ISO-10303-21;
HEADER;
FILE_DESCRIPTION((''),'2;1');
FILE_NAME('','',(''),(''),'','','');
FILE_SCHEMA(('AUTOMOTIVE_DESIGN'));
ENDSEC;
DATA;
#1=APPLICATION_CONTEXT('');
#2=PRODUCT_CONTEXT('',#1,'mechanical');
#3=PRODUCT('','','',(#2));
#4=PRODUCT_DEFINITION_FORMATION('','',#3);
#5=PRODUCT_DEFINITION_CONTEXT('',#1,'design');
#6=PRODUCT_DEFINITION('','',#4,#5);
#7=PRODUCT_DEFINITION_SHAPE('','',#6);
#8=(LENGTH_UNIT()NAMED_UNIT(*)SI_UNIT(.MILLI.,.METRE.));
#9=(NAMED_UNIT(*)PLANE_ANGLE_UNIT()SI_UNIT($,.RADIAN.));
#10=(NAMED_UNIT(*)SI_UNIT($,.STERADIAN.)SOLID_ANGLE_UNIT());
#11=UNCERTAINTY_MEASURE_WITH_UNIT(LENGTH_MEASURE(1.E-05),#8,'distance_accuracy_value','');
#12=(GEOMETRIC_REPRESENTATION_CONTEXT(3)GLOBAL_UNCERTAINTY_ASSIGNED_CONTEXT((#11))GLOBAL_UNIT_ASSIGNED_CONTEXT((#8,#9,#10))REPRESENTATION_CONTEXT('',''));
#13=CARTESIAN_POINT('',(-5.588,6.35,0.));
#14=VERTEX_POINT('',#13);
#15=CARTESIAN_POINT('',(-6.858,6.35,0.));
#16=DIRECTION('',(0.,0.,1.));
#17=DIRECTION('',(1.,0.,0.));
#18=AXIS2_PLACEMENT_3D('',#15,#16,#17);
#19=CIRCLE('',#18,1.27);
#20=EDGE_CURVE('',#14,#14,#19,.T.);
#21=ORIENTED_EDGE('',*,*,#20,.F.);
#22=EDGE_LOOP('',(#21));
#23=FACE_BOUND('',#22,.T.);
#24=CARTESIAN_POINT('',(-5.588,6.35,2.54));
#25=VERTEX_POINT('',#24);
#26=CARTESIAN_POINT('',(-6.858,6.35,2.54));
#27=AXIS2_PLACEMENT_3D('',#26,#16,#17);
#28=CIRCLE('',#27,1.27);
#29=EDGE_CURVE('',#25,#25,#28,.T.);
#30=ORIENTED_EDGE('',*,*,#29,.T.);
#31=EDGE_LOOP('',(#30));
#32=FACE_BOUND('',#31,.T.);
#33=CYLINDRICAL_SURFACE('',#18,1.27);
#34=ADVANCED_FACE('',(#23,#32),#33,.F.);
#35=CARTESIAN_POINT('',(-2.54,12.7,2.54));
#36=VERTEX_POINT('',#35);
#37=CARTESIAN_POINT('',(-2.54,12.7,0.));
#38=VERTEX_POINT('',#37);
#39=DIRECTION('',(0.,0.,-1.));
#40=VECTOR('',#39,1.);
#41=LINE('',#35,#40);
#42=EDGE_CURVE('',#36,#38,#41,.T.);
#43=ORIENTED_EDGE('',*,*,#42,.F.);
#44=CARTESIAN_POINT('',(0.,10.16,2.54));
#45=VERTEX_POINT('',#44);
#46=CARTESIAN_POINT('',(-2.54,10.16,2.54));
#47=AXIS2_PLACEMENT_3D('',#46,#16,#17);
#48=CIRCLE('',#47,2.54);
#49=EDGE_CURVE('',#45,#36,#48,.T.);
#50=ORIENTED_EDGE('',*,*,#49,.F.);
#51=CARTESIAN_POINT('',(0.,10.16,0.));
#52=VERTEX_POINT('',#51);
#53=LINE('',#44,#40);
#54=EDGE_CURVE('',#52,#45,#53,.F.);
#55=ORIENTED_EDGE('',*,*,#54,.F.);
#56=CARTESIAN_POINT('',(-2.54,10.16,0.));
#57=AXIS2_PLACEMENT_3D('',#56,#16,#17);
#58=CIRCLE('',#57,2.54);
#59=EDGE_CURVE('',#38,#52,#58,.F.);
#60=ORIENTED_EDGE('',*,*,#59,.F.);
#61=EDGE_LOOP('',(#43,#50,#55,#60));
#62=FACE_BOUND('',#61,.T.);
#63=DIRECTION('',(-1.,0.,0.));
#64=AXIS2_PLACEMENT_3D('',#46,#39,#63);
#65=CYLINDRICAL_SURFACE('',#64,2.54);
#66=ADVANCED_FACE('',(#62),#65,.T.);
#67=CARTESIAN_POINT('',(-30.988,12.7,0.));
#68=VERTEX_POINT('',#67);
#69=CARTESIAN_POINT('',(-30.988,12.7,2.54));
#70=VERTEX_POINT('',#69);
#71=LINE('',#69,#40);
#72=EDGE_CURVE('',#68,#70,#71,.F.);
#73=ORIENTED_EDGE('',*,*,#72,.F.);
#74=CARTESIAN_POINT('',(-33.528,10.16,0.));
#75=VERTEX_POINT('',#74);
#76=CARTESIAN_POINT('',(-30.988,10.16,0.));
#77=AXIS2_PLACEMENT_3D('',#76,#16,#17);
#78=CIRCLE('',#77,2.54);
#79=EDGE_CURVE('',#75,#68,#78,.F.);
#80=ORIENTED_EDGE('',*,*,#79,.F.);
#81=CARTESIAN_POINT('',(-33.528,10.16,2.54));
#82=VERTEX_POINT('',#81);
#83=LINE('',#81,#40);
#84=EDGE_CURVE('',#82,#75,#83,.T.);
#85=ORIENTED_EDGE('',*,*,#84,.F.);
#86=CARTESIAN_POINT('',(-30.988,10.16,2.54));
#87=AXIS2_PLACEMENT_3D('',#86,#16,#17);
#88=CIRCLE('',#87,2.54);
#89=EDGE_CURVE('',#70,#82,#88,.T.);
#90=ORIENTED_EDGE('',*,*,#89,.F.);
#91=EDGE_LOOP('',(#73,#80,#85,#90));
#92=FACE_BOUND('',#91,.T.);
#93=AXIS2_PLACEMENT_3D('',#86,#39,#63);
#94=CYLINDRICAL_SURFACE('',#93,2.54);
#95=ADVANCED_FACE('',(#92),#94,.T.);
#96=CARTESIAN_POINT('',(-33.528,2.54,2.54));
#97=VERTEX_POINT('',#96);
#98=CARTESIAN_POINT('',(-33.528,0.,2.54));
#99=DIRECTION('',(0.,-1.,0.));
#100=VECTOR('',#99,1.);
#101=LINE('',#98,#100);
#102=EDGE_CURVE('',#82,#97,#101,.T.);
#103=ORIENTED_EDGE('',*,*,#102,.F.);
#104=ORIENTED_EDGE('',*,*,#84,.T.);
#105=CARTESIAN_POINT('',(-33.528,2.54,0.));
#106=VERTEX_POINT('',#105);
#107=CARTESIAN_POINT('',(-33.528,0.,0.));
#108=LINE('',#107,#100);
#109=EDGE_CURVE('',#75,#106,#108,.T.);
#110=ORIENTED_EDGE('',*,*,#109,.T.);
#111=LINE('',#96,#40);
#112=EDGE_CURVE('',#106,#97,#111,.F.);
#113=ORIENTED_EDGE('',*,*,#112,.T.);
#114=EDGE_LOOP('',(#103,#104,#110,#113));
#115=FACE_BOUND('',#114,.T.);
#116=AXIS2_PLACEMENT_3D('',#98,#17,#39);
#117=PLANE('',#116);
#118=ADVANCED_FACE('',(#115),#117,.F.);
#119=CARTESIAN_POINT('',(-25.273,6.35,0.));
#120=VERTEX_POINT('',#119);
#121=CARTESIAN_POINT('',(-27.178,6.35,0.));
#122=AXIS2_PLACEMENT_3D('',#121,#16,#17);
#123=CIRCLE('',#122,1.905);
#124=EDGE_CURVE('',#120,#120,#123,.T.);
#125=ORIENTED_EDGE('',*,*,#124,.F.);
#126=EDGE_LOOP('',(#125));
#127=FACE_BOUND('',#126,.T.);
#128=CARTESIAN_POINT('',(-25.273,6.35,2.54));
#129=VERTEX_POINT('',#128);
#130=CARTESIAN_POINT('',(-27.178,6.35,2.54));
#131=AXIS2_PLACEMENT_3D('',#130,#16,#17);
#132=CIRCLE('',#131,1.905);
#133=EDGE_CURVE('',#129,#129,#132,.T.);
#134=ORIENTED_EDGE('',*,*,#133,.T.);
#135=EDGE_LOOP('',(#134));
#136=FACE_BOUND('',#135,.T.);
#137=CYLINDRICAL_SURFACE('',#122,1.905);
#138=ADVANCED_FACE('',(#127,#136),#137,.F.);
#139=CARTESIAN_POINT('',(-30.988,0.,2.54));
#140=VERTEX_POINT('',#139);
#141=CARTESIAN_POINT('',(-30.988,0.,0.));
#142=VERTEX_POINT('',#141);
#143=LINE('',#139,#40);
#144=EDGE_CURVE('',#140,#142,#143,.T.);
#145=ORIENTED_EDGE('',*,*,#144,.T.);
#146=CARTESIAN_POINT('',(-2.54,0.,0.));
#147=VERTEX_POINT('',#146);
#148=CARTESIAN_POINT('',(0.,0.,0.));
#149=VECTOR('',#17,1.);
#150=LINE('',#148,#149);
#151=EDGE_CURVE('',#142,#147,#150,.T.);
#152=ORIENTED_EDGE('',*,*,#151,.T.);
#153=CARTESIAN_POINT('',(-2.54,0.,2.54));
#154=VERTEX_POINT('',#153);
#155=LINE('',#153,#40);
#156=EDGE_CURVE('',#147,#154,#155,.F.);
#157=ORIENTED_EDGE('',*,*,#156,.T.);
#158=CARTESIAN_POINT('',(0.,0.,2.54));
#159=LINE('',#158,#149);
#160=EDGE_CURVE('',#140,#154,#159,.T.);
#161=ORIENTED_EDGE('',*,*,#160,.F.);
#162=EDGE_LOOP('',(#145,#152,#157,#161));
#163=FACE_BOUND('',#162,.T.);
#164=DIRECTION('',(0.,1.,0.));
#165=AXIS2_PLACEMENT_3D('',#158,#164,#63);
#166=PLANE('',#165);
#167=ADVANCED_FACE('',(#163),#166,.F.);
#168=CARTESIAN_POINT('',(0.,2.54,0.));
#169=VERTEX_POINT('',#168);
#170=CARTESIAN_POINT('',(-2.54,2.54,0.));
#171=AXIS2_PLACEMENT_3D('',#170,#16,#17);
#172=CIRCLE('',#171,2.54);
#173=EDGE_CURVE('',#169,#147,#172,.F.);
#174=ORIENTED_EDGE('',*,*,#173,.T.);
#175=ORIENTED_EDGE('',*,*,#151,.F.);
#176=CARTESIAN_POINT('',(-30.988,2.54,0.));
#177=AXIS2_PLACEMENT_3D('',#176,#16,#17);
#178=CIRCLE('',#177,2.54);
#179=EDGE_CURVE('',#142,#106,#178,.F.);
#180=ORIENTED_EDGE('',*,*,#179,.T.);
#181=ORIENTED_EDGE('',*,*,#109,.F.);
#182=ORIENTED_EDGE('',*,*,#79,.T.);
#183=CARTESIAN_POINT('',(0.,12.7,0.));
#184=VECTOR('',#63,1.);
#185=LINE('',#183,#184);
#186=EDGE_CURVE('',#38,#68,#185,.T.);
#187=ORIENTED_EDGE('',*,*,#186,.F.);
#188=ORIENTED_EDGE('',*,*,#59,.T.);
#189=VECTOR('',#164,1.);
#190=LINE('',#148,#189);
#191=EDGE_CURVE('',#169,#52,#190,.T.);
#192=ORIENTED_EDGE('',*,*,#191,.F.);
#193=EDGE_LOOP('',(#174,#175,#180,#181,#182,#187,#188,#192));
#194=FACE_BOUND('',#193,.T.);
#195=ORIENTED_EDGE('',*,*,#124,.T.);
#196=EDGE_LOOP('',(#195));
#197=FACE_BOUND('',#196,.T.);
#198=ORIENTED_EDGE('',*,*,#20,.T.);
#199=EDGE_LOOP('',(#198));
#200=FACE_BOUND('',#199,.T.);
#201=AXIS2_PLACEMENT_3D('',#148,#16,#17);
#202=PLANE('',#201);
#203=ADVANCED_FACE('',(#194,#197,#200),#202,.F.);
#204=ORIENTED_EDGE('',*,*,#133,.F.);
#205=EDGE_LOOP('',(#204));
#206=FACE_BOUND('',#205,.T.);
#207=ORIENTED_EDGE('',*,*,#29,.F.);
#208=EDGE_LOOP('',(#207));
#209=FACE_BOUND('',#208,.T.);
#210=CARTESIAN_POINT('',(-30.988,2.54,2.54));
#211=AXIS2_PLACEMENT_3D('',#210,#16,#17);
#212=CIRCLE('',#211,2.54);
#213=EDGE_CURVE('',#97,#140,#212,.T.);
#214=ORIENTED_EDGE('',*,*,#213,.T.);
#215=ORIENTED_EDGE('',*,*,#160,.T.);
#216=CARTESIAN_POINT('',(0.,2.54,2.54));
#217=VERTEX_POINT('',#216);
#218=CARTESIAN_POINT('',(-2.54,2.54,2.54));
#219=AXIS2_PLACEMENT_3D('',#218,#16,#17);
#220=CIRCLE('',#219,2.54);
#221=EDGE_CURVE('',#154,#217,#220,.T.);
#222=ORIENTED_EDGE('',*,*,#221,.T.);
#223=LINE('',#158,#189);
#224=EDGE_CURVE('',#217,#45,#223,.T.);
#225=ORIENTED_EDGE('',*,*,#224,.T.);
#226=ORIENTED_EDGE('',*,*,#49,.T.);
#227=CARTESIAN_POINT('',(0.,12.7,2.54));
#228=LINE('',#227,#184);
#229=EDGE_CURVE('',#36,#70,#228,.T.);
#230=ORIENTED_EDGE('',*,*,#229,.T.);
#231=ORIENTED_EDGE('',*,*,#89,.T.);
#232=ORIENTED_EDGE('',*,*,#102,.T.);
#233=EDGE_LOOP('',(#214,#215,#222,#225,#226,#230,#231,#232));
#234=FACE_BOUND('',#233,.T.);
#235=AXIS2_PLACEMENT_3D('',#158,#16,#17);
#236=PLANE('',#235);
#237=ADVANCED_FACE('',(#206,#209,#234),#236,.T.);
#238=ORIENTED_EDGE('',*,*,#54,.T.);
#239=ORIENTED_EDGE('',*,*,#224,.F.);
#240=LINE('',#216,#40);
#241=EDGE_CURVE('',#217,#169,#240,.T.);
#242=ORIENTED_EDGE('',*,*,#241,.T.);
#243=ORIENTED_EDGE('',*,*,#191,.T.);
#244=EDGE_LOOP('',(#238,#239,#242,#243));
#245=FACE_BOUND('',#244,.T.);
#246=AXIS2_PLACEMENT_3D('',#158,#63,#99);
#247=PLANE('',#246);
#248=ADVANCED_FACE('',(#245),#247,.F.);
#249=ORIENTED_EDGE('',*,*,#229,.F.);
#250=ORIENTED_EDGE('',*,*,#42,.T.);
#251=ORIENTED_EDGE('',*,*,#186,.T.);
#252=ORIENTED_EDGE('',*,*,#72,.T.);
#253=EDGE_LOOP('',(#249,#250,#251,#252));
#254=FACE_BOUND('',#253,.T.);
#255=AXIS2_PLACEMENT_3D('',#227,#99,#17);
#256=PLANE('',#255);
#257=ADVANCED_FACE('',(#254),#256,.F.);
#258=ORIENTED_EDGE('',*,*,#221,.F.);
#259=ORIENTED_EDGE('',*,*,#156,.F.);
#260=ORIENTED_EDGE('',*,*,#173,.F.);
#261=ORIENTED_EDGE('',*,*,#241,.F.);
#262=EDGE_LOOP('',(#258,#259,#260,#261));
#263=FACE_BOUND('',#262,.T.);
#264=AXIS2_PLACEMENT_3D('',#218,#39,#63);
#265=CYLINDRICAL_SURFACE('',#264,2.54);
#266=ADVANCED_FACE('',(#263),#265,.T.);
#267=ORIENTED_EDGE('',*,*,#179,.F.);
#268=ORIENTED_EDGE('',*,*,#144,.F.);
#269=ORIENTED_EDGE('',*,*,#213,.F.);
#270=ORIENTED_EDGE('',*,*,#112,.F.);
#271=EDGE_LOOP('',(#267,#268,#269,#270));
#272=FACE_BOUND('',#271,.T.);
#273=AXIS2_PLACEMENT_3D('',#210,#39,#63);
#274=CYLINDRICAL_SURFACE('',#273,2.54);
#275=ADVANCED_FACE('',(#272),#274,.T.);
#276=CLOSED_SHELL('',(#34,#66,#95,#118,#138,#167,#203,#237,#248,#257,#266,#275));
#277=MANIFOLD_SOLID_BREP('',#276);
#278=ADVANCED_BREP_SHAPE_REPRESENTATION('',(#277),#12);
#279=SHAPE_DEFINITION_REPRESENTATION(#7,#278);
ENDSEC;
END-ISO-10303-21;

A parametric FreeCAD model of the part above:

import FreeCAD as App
import Part
import Sketcher
from FreeCAD import Vector
Q = App.Units.Quantity


def edges_at(feature, points):
    """Names of the edges that pass closest to the given points."""
    edges = feature.Shape.Edges
    near = lambda p: min(range(len(edges)), key=lambda i: edges[i].distToShape(Part.Vertex(*p))[0])
    return sorted({f"Edge{near(p) + 1}" for p in points})


def add_polygon(sketch, points):
    """Adds a closed chain of lines whose ends are joined by coincident constraints."""
    first, n = sketch.GeometryCount, len(points)
    for a, b in zip(points, points[1:] + points[:1]):
        sketch.addGeometry(Part.LineSegment(App.Vector(*a, 0), App.Vector(*b, 0)), False)
    for i in range(n):
        sketch.addConstraint(Sketcher.Constraint("Coincident", first + i, 2, first + (i + 1) % n, 1))

doc = App.newDocument("Part")
params = doc.addObject("Spreadsheet::Sheet", "Params")
for row, (alias, value) in enumerate([
    ("sketch1_height", "0.5 in"),
    ("sketch1_width", "1.32 in"),
    ("pad1_length", "0.1 in"),
    ("fillet_radius", "0.1 in"),
    ("sketch2_diameter", "0.1 in"),
    ("sketch2_diameter2", "0.15 in"),
], start=1):
    params.set(f"A{row}", alias)
    params.set(f"B{row}", "=" + value)
    params.setAlias(f"B{row}", alias)

body = doc.addObject("PartDesign::Body", "Body")

sketch1 = doc.addObject("Sketcher::SketchObject", "Sketch")
body.addObject(sketch1)
sketch1.AttachmentSupport = (doc.XY_Plane, [""])
sketch1.MapMode = "FlatFace"
add_polygon(sketch1, [(-34, 13), (-34, 0), (0, 0), (0, 13)])
sketch1.addConstraint([
    Sketcher.Constraint("Vertical", 0),
    Sketcher.Constraint("Horizontal", 1),
    Sketcher.Constraint("Vertical", 2),
    Sketcher.Constraint("Horizontal", 3),
    Sketcher.Constraint("Coincident", 1, 2, -1, 1),
    Sketcher.Constraint("DistanceY", 0, 2, 0, 1, Q("0.5 in")),
    Sketcher.Constraint("DistanceX", 1, 1, 1, 2, Q("1.32 in")),
])
sketch1.setExpression("Constraints[9]", "Params.sketch1_height")
sketch1.setExpression("Constraints[10]", "Params.sketch1_width")
pad1 = doc.addObject("PartDesign::Pad", "Pad")
body.addObject(pad1)
pad1.Profile = sketch1
pad1.setExpression("Length", "Params.pad1_length")
doc.recompute()

fillet = doc.addObject("PartDesign::Fillet", "Fillet")
body.addObject(fillet)
fillet.Base = (pad1, edges_at(pad1, [
    (0, 0, 1.27),
    (-33.528, 0, 1.27),
    (-33.528, 12.7, 1.27),
    (0, 12.7, 1.27),
]))
fillet.setExpression("Radius", "Params.fillet_radius")

sketch2 = doc.addObject("Sketcher::SketchObject", "Sketch001")
body.addObject(sketch2)
sketch2.AttachmentSupport = (doc.XY_Plane, [""])
sketch2.MapMode = "FlatFace"
sketch2.AttachmentOffset = App.Placement(Vector(0, 0, 0.1 * 25.4), App.Rotation())
sketch2.addGeometry([
    Part.Circle(Vector(-27.2, 6.3, 0), Vector(0, 0, 1), 1.9),
    Part.Circle(Vector(-6.9, 6.3, 0), Vector(0, 0, 1), 1.3),
], False)
sketch2.addConstraint([
    Sketcher.Constraint("Horizontal", 0, 3, 1, 3),
    Sketcher.Constraint("Diameter", 1, Q("0.1 in")),
    Sketcher.Constraint("Diameter", 0, Q("0.15 in")),
    Sketcher.Constraint("DistanceX", 0, 3, 1, 3, Q("0.8 in")),
    Sketcher.Constraint("DistanceX", 0, 3, -1, 1, Q("1.07 in")),
    Sketcher.Constraint("DistanceY", -1, 1, 0, 3, Q("0.25 in")),
])
sketch2.setExpression("Constraints[1]", "Params.sketch2_diameter")
sketch2.setExpression("Constraints[2]", "Params.sketch2_diameter2")
pocket1 = doc.addObject("PartDesign::Pocket", "Pocket")
body.addObject(pocket1)
pocket1.Profile = sketch2
pocket1.Type = "ThroughAll"

doc.recompute()
